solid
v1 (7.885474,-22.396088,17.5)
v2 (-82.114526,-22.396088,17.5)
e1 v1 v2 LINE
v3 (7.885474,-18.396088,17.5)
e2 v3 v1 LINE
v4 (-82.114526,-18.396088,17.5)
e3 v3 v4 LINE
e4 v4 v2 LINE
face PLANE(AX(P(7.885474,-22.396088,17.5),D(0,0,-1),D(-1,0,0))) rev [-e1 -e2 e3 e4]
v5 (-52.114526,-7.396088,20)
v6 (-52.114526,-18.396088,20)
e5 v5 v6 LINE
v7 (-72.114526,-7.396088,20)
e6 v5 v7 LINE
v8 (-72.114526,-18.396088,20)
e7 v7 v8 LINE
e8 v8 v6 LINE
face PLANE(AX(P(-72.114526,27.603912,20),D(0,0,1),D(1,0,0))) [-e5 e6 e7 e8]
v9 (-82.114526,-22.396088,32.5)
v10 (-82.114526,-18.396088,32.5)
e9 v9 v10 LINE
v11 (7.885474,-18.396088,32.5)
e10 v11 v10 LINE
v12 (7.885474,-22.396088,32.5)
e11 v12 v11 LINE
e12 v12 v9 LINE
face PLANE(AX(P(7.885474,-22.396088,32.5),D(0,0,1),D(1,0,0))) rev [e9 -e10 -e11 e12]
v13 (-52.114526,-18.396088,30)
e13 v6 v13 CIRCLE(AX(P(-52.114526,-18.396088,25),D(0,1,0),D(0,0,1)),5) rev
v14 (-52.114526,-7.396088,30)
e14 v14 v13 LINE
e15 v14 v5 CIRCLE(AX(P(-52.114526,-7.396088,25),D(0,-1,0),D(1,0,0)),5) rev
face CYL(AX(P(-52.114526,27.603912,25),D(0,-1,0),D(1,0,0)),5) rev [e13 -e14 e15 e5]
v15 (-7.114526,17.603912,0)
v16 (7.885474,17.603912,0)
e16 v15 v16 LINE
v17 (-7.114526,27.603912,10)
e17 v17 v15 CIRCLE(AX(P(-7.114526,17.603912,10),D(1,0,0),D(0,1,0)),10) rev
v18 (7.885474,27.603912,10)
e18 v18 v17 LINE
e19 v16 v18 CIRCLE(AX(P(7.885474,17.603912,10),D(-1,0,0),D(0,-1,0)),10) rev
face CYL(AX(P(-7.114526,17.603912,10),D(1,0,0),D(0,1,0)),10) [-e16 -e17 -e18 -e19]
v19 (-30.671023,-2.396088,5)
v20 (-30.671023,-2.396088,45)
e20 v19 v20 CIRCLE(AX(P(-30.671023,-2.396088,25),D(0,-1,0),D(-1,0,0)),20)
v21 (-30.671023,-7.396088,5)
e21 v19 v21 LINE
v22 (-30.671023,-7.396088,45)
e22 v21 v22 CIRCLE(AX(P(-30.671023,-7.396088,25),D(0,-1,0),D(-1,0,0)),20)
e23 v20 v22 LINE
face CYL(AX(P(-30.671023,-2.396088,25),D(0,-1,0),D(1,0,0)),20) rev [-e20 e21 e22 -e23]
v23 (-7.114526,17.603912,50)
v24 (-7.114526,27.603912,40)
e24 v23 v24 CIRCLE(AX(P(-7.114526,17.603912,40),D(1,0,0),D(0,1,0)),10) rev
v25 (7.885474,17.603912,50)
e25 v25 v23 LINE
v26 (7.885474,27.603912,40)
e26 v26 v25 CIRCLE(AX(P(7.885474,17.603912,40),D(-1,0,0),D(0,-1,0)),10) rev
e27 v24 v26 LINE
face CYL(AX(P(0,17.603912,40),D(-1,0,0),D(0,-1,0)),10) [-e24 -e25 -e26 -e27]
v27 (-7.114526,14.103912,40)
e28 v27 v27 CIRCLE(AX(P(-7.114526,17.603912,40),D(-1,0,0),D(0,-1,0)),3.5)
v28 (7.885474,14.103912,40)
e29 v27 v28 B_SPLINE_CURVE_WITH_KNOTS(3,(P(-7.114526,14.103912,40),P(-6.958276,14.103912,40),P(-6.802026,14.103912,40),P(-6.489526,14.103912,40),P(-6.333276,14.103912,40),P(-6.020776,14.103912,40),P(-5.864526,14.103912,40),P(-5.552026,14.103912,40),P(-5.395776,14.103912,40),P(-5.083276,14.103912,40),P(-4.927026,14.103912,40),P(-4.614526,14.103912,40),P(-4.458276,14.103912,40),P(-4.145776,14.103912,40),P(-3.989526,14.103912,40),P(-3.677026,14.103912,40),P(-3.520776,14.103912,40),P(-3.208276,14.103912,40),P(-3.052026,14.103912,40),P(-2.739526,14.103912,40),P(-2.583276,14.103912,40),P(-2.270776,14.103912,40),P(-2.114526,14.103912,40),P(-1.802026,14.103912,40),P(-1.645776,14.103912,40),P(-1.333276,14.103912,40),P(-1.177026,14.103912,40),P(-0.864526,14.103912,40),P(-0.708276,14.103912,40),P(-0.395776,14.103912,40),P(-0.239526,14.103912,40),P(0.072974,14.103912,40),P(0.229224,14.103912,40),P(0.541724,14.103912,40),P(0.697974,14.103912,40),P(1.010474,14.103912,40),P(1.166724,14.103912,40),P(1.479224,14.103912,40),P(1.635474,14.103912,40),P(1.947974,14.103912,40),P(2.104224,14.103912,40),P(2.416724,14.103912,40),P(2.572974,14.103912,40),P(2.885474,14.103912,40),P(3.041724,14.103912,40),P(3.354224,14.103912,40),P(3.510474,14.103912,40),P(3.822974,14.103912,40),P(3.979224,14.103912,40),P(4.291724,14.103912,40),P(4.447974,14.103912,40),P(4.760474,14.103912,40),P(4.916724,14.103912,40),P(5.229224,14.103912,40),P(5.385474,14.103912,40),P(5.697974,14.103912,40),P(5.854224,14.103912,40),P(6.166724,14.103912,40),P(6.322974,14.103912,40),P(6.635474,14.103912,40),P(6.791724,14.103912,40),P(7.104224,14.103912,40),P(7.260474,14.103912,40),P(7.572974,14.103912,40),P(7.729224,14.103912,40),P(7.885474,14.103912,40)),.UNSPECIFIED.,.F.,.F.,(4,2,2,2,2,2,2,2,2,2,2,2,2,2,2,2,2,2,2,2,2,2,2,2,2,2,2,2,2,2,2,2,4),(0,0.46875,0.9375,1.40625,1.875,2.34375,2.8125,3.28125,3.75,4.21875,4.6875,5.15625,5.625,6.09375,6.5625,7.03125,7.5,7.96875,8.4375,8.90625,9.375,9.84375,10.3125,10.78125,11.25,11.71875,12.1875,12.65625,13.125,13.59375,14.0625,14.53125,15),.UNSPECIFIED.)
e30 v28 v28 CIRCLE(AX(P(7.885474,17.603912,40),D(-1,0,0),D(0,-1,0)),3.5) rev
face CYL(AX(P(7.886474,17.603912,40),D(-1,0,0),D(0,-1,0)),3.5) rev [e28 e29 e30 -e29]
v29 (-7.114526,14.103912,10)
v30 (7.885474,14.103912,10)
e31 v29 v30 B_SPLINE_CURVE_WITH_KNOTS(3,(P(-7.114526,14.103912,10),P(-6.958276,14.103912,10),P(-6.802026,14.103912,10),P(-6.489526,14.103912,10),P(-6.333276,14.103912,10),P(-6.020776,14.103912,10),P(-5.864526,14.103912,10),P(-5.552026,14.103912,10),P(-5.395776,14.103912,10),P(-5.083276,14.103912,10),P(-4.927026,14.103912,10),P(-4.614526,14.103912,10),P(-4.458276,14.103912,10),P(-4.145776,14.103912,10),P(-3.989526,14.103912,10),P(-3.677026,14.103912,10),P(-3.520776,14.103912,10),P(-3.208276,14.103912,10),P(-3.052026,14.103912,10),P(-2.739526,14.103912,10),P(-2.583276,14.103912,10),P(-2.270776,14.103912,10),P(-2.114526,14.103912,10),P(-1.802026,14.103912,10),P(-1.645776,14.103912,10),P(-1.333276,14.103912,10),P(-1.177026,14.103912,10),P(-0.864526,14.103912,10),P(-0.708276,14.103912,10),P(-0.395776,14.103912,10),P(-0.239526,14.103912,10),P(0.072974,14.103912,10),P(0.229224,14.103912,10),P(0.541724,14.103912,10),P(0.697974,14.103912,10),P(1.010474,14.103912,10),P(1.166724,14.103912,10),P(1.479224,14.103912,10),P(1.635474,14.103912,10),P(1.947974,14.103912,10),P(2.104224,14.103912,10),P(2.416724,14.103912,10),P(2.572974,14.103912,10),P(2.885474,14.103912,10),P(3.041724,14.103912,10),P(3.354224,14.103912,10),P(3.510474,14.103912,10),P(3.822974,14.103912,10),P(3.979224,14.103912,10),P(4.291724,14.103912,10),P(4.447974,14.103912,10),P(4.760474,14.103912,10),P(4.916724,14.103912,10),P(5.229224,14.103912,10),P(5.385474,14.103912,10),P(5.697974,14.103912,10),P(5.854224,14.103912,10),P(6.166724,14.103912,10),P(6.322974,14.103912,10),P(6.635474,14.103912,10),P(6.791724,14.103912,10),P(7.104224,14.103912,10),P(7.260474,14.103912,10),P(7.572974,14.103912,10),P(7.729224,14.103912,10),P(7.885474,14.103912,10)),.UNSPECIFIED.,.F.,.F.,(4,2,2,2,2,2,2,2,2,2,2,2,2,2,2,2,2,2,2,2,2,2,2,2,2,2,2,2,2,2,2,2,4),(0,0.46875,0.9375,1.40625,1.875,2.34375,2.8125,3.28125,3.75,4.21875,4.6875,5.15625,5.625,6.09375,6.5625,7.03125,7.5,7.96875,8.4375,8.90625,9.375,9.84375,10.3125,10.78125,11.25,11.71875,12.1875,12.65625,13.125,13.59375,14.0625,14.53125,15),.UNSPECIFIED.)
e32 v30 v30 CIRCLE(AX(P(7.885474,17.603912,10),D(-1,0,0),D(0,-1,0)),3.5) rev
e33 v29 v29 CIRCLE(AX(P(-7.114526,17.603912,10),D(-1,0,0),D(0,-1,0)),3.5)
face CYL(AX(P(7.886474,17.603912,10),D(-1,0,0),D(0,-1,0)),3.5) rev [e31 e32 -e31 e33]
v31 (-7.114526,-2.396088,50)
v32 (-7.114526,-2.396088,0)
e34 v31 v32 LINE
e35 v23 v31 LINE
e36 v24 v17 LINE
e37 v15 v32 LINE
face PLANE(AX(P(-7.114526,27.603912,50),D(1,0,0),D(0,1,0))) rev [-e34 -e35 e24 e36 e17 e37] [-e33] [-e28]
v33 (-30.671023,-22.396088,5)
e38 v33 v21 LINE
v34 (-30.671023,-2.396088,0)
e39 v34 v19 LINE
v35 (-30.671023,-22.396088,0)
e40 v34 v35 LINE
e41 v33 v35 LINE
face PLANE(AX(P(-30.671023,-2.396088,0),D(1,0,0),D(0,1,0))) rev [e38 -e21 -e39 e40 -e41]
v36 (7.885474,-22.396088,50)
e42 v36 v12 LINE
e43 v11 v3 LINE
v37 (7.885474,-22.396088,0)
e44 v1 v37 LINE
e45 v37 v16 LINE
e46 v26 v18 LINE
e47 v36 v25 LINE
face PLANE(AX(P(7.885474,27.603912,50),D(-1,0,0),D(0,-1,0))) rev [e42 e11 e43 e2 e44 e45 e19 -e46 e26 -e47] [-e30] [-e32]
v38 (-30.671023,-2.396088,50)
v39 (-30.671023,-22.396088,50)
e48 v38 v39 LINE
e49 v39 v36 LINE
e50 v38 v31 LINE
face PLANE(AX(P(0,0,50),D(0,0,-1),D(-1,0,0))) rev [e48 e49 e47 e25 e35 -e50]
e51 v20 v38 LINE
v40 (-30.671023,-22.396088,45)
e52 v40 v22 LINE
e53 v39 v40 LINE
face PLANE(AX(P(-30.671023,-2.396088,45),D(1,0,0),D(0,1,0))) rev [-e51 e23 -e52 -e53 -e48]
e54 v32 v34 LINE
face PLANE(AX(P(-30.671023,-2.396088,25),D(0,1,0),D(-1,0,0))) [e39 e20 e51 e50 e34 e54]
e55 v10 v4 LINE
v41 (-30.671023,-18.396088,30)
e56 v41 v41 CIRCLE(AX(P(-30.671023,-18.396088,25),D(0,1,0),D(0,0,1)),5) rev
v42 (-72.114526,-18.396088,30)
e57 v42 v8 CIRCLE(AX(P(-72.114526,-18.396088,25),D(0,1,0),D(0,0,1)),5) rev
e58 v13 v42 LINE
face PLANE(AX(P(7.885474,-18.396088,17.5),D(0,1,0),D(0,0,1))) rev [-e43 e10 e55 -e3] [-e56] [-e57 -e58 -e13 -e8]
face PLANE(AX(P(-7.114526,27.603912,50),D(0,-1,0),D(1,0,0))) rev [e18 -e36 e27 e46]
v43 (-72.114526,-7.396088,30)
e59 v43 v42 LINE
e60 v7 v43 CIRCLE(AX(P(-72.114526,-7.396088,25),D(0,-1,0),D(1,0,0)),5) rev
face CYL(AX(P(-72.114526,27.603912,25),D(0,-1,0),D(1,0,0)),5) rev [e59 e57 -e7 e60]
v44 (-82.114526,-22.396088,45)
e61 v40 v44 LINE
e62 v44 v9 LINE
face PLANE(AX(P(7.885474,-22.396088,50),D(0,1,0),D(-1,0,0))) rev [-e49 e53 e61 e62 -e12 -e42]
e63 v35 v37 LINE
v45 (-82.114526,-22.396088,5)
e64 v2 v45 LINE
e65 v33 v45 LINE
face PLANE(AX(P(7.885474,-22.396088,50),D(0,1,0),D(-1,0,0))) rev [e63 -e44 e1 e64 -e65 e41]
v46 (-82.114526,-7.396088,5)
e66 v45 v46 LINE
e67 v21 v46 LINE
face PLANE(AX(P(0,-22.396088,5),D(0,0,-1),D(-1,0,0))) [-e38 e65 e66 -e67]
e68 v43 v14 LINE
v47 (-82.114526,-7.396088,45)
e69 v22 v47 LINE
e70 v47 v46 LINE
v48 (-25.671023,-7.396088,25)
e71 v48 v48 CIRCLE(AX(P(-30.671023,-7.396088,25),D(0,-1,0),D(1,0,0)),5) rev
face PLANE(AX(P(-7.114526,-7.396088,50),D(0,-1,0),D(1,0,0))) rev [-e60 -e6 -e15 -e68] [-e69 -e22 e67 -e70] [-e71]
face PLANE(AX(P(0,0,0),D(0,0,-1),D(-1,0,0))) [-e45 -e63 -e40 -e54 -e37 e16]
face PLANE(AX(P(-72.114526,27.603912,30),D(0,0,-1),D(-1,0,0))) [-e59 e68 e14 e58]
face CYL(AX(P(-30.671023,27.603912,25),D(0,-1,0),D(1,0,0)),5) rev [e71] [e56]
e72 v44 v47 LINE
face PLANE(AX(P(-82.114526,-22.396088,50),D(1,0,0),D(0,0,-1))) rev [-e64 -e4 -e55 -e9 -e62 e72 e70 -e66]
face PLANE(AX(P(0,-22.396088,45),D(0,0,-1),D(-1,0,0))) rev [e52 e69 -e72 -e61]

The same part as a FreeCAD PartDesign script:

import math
import FreeCAD as App
import Part
import Sketcher
from FreeCAD import Vector


def edges_at(feature, points):
    """Names of the edges that pass closest to the given points."""
    edges = feature.Shape.Edges
    near = lambda p: min(range(len(edges)), key=lambda i: edges[i].distToShape(Part.Vertex(*p))[0])
    return sorted({f"Edge{near(p) + 1}" for p in points})


def add_polygon(sketch, points):
    """Adds a closed chain of lines whose ends are joined by coincident constraints."""
    first, n = sketch.GeometryCount, len(points)
    for a, b in zip(points, points[1:] + points[:1]):
        sketch.addGeometry(Part.LineSegment(App.Vector(*a, 0), App.Vector(*b, 0)), False)
    for i in range(n):
        sketch.addConstraint(Sketcher.Constraint("Coincident", first + i, 2, first + (i + 1) % n, 1))

doc = App.newDocument("Part")
body = doc.addObject("PartDesign::Body", "Body")

# Sketch on XY plane
sketch1 = body.newObject("Sketcher::SketchObject", "Sketch")
sketch1.AttachmentSupport = (doc.getObject("XY_Plane"), [""])
sketch1.MapMode = "FlatFace"
add_polygon(sketch1, [(8, 28), (-7, 28), (-7, -7), (-82, -7), (-82, -22), (8, -22)])  # lines 0-5
sketch1.addConstraint([
    Sketcher.Constraint("Horizontal", 0),
    Sketcher.Constraint("Vertical", 1),
    Sketcher.Constraint("Horizontal", 2),
    Sketcher.Constraint("Vertical", 3),
    Sketcher.Constraint("Horizontal", 4),
    Sketcher.Constraint("Vertical", 5),
    Sketcher.Constraint("Equal", 0, 3),
    Sketcher.Constraint("DistanceX", 0, 2, 0, 1, 15.0),
    Sketcher.Constraint("DistanceX", 2, 2, 2, 1, 75.0),
    Sketcher.Constraint("DistanceY", 1, 2, 1, 1, 35.0),
    Sketcher.Constraint("DistanceY", -1, 1, 0, 2, 27.603912),
    Sketcher.Constraint("DistanceX", 0, 2, -1, 1, 7.114526),
])
pad1 = body.newObject("PartDesign::Pad", "Pad")
pad1.Profile = sketch1
pad1.Length = 50

# Sketch on XZ plane
sketch2 = body.newObject("Sketcher::SketchObject", "Sketch001")
sketch2.AttachmentSupport = (doc.getObject("XZ_Plane"), [""])
sketch2.MapMode = "FlatFace"
sketch2.AttachmentOffset = App.Placement(Vector(0, 0, 7.396088), App.Rotation())
sketch2.addGeometry([
    Part.LineSegment(Vector(-7, 0, 0), Vector(-31, 0, 0)),  # 0
    Part.LineSegment(Vector(-31, 0, 0), Vector(-31, 5, 0)),  # 1
    Part.ArcOfCircle(Part.Circle(Vector(-31, 25, 0), Vector(0, 0, 1), 20), math.radians(-90), math.radians(90)),  # 2
    Part.LineSegment(Vector(-31, 45, 0), Vector(-31, 50, 0)),  # 3
    Part.LineSegment(Vector(-31, 50, 0), Vector(-7, 50, 0)),  # 4
    Part.LineSegment(Vector(-7, 50, 0), Vector(-7, 0, 0)),  # 5
], False)
sketch2.addConstraint([
    Sketcher.Constraint("Coincident", 0, 2, 1, 1),
    Sketcher.Constraint("Coincident", 1, 2, 2, 1),
    Sketcher.Constraint("Coincident", 2, 2, 3, 1),
    Sketcher.Constraint("Coincident", 3, 2, 4, 1),
    Sketcher.Constraint("Coincident", 4, 2, 5, 1),
    Sketcher.Constraint("Coincident", 5, 2, 0, 1),
    Sketcher.Constraint("Horizontal", 0),
    Sketcher.Constraint("Vertical", 1),
    Sketcher.Constraint("Vertical", 3),
    Sketcher.Constraint("Horizontal", 4),
    Sketcher.Constraint("Vertical", 5),
    Sketcher.Constraint("PointOnObject", 0, 2, -1),
    Sketcher.Constraint("Vertical", 2, 3, 0, 2),
    Sketcher.Constraint("Vertical", 1, 2, 2, 2),
    Sketcher.Constraint("Equal", 1, 3),
    Sketcher.Constraint("Radius", 2, 20.0),
    Sketcher.Constraint("DistanceY", 1, 1, 1, 2, 5.0),
    Sketcher.Constraint("DistanceX", 0, 2, 0, 1, 23.556498),
    Sketcher.Constraint("DistanceX", 2, 3, -1, 1, 30.671023),
])
pad2 = body.newObject("PartDesign::Pad", "Pad001")
pad2.Profile = sketch2
pad2.Length = 5
pad2.Reversed = True

# Sketch on XZ plane
sketch3 = body.newObject("Sketcher::SketchObject", "Sketch002")
sketch3.AttachmentSupport = (doc.getObject("XZ_Plane"), [""])
sketch3.MapMode = "FlatFace"
sketch3.AttachmentOffset = App.Placement(Vector(0, 0, 7.396088), App.Rotation())
add_polygon(sketch3, [(-82, 0), (-82, 5), (-31, 5), (-31, 0)])  # lines 0-3
add_polygon(sketch3, [(-82, 45), (-82, 50), (-31, 50), (-31, 45)])  # lines 4-7
sketch3.addConstraint([
    Sketcher.Constraint("Vertical", 0),
    Sketcher.Constraint("Horizontal", 1),
    Sketcher.Constraint("Vertical", 2),
    Sketcher.Constraint("Horizontal", 3),
    Sketcher.Constraint("Vertical", 4),
    Sketcher.Constraint("Horizontal", 5),
    Sketcher.Constraint("Vertical", 6),
    Sketcher.Constraint("Horizontal", 7),
    Sketcher.Constraint("PointOnObject", 2, 2, -1),
    Sketcher.Constraint("Vertical", 3, 2, 4, 2),
    Sketcher.Constraint("Vertical", 2, 2, 5, 2),
    Sketcher.Constraint("Equal", 2, 4),
    Sketcher.Constraint("DistanceY", 0, 1, 0, 2, 5.0),
    Sketcher.Constraint("DistanceY", -1, 1, 4, 2, 50.0),
    Sketcher.Constraint("DistanceX", 1, 1, 1, 2, 51.443502),
    Sketcher.Constraint("DistanceX", 0, 2, -1, 1, 82.114526),
])
pocket1 = body.newObject("PartDesign::Pocket", "Pocket")
pocket1.Profile = sketch3
pocket1.Length = 15
pocket1.Reversed = True

# Sketch on YZ plane
sketch4 = body.newObject("Sketcher::SketchObject", "Sketch003")
sketch4.AttachmentSupport = (doc.getObject("YZ_Plane"), [""])
sketch4.MapMode = "FlatFace"
sketch4.AttachmentOffset = App.Placement(Vector(0, 0, -82.114526), App.Rotation())
add_polygon(sketch4, [(-18.4, 17.5), (-22.4, 17.5), (-22.4, 32.5), (-18.4, 32.5)])  # lines 0-3
sketch4.addConstraint([
    Sketcher.Constraint("Horizontal", 0),
    Sketcher.Constraint("Vertical", 1),
    Sketcher.Constraint("Horizontal", 2),
    Sketcher.Constraint("Vertical", 3),
    Sketcher.Constraint("DistanceX", 0, 2, 0, 1, 4.0),
    Sketcher.Constraint("DistanceY", 1, 1, 1, 2, 15.0),
    Sketcher.Constraint("DistanceY", -1, 1, 0, 2, 17.5),
    Sketcher.Constraint("DistanceX", 0, 2, -1, 1, 22.396088),
])
pocket2 = body.newObject("PartDesign::Pocket", "Pocket001")
pocket2.Profile = sketch4
pocket2.Length = 90
pocket2.Reversed = True
doc.recompute()

fillet = body.newObject("PartDesign::Fillet", "Fillet")
fillet.Base = (pocket2, edges_at(pocket2, [(0.385, 27.604, 0)]))
fillet.Radius = 10
doc.recompute()

fillet2 = body.newObject("PartDesign::Fillet", "Fillet001")
fillet2.Base = (fillet, edges_at(fillet, [(0.385, 27.604, 50)]))
fillet2.Radius = 10

# Sketch on YZ plane
sketch5 = body.newObject("Sketcher::SketchObject", "Sketch004")
sketch5.AttachmentSupport = (doc.getObject("YZ_Plane"), [""])
sketch5.MapMode = "FlatFace"
sketch5.AttachmentOffset = App.Placement(Vector(0, 0, -7.114526), App.Rotation())
sketch5.addGeometry(Part.Circle(Vector(17.6, 10, 0), Vector(0, 0, 1), 3.5), False)
sketch5.addConstraint([
    Sketcher.Constraint("Diameter", 0, 7.0),
    Sketcher.Constraint("DistanceY", -1, 1, 0, 3, 10.0),
    Sketcher.Constraint("DistanceX", -1, 1, 0, 3, 17.603912),
])
pocket3 = body.newObject("PartDesign::Pocket", "Pocket002")
pocket3.Profile = sketch5
pocket3.Type = "UpToFirst"
pocket3.Reversed = True

# Sketch on YZ plane
sketch6 = body.newObject("Sketcher::SketchObject", "Sketch005")
sketch6.AttachmentSupport = (doc.getObject("YZ_Plane"), [""])
sketch6.MapMode = "FlatFace"
sketch6.AttachmentOffset = App.Placement(Vector(0, 0, -7.114526), App.Rotation())
sketch6.addGeometry(Part.Circle(Vector(17.6, 40, 0), Vector(0, 0, 1), 3.5), False)
sketch6.addConstraint([
    Sketcher.Constraint("Diameter", 0, 7.0),
    Sketcher.Constraint("DistanceY", -1, 1, 0, 3, 40.0),
    Sketcher.Constraint("DistanceX", -1, 1, 0, 3, 17.603912),
])
pocket4 = body.newObject("PartDesign::Pocket", "Pocket003")
pocket4.Profile = sketch6
pocket4.Type = "UpToFirst"
pocket4.Reversed = True

# Sketch on XZ plane
sketch7 = body.newObject("Sketcher::SketchObject", "Sketch006")
sketch7.AttachmentSupport = (doc.getObject("XZ_Plane"), [""])
sketch7.MapMode = "FlatFace"
sketch7.AttachmentOffset = App.Placement(Vector(0, 0, 7.396088), App.Rotation())
sketch7.addGeometry([
    Part.Circle(Vector(-31, 25, 0), Vector(0, 0, 1), 5),  # 0
    Part.LineSegment(Vector(-52, 20, 0), Vector(-72, 20, 0)),  # 1
    Part.ArcOfCircle(Part.Circle(Vector(-72, 25, 0), Vector(0, 0, 1), 5), math.radians(90), math.radians(270)),  # 2
    Part.LineSegment(Vector(-72, 30, 0), Vector(-52, 30, 0)),  # 3
    Part.ArcOfCircle(Part.Circle(Vector(-52, 25, 0), Vector(0, 0, 1), 5), math.radians(-90), math.radians(90)),  # 4
], False)
sketch7.addConstraint([
    Sketcher.Constraint("Tangent", 1, 2, 2, 2),
    Sketcher.Constraint("Tangent", 2, 1, 3, 1),
    Sketcher.Constraint("Tangent", 3, 2, 4, 2),
    Sketcher.Constraint("Tangent", 4, 1, 1, 1),
    Sketcher.Constraint("Horizontal", 1),
    Sketcher.Constraint("Horizontal", 3),
    Sketcher.Constraint("Equal", 0, 2),
    Sketcher.Constraint("Horizontal", 0, 3, 2, 3),
    Sketcher.Constraint("Diameter", 0, 10.0),
    Sketcher.Constraint("DistanceX", 1, 2, 1, 1, 20.0),
    Sketcher.Constraint("DistanceY", -1, 1, 0, 3, 25.0),
    Sketcher.Constraint("DistanceX", 0, 3, -1, 1, 30.671023),
    Sketcher.Constraint("DistanceX", 2, 3, -1, 1, 72.114526),
])
pocket5 = body.newObject("PartDesign::Pocket", "Pocket004")
pocket5.Profile = sketch7
pocket5.Type = "ThroughAll"
pocket5.Midplane = True

doc.recompute()
